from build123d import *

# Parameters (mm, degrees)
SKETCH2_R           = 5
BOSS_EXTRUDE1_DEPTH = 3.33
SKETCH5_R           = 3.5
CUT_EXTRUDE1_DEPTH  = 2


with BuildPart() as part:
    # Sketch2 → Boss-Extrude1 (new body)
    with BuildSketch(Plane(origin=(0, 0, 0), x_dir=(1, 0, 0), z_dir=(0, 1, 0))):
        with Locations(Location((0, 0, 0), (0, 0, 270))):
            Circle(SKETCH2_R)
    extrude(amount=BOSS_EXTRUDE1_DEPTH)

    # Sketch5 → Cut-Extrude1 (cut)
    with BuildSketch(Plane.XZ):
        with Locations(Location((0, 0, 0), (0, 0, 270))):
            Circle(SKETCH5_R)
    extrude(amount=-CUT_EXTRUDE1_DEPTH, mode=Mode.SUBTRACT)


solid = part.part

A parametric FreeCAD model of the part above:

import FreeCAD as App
import Part
import Sketcher
from FreeCAD import Vector

doc = App.newDocument("Part")
body = doc.addObject("PartDesign::Body", "Body")

sketch1 = body.newObject("Sketcher::SketchObject", "Sketch")
sketch1.AttachmentSupport = (doc.getObject("XZ_Plane"), [""])
sketch1.MapMode = "FlatFace"
sketch1.addGeometry(Part.Circle(Vector(0, 0, 0), Vector(0, 0, 1), 5), False)
sketch1.addConstraint([
    Sketcher.Constraint("Coincident", 0, 3, -1, 1),
    Sketcher.Constraint("Diameter", 0, 10.0),
])
pad1 = body.newObject("PartDesign::Pad", "Pad")
pad1.Profile = sketch1
pad1.Length = 3.33
pad1.Reversed = True

sketch2 = body.newObject("Sketcher::SketchObject", "Sketch001")
sketch2.AttachmentSupport = (doc.getObject("XZ_Plane"), [""])
sketch2.MapMode = "FlatFace"
sketch2.addGeometry(Part.Circle(Vector(0, 0, 0), Vector(0, 0, 1), 3.5), False)
sketch2.addConstraint([
    Sketcher.Constraint("Coincident", 0, 3, -1, 1),
    Sketcher.Constraint("Diameter", 0, 7.0),
])
pocket1 = body.newObject("PartDesign::Pocket", "Pocket")
pocket1.Profile = sketch2
pocket1.Length = 2

doc.recompute()
